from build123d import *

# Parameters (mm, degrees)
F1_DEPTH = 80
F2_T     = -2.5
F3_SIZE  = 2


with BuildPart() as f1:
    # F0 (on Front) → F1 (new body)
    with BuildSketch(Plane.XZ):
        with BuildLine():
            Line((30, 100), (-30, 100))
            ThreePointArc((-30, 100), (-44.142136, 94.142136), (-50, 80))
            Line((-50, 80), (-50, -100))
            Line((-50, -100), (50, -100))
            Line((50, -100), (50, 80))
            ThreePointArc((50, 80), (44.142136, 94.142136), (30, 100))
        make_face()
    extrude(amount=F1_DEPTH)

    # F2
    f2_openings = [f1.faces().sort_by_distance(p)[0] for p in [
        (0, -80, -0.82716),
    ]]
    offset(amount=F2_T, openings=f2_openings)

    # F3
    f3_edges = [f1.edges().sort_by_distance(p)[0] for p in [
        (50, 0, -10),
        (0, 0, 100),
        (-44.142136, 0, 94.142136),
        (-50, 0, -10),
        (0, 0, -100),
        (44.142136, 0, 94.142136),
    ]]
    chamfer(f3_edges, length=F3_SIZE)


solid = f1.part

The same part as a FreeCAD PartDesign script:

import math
import FreeCAD as App
import Part
import Sketcher
from FreeCAD import Vector


def edges_at(feature, points):
    """Names of the edges that pass closest to the given points."""
    edges = feature.Shape.Edges
    near = lambda p: min(range(len(edges)), key=lambda i: edges[i].distToShape(Part.Vertex(*p))[0])
    return sorted({f"Edge{near(p) + 1}" for p in points})


def faces_at(feature, points):
    """Names of the faces that lie closest to the given points."""
    faces = feature.Shape.Faces
    near = lambda p: min(range(len(faces)), key=lambda i: faces[i].distToShape(Part.Vertex(*p))[0])
    return sorted({f"Face{near(p) + 1}" for p in points})

doc = App.newDocument("Part")
body = doc.addObject("PartDesign::Body", "Body")

# Sketch on XZ plane
sketch1 = doc.addObject("Sketcher::SketchObject", "Sketch")
body.addObject(sketch1)
sketch1.AttachmentSupport = (doc.XZ_Plane, [""])
sketch1.MapMode = "FlatFace"
sketch1.addGeometry([
    Part.LineSegment(Vector(30, 100, 0), Vector(-30, 100, 0)),  # 0
    Part.ArcOfCircle(Part.Circle(Vector(-30, 80, 0), Vector(0, 0, 1), 20), math.radians(90), math.radians(180)),  # 1
    Part.LineSegment(Vector(-50, 80, 0), Vector(-50, -100, 0)),  # 2
    Part.LineSegment(Vector(-50, -100, 0), Vector(50, -100, 0)),  # 3
    Part.LineSegment(Vector(50, -100, 0), Vector(50, 80, 0)),  # 4
    Part.ArcOfCircle(Part.Circle(Vector(30, 80, 0), Vector(0, 0, 1), 20), math.radians(0), math.radians(90)),  # 5
], False)
sketch1.addConstraint([
    Sketcher.Constraint("Tangent", 0, 2, 1, 1),
    Sketcher.Constraint("Tangent", 1, 2, 2, 1),
    Sketcher.Constraint("Coincident", 2, 2, 3, 1),
    Sketcher.Constraint("Coincident", 3, 2, 4, 1),
    Sketcher.Constraint("Tangent", 4, 2, 5, 1),
    Sketcher.Constraint("Tangent", 5, 2, 0, 1),
    Sketcher.Constraint("Horizontal", 0),
    Sketcher.Constraint("Vertical", 2),
    Sketcher.Constraint("Horizontal", 3),
    Sketcher.Constraint("Vertical", 4),
    Sketcher.Constraint("Equal", 1, 5),
    Sketcher.Constraint("Radius", 1, 19.999999),
    Sketcher.Constraint("DistanceX", 0, 2, 0, 1, 60.0),
    Sketcher.Constraint("DistanceY", 2, 2, 2, 1, 180.0),
    Sketcher.Constraint("DistanceX", 1, 3, -1, 1, 30.000001),
    Sketcher.Constraint("DistanceY", -1, 1, 1, 3, 80.000001),
])
pad1 = doc.addObject("PartDesign::Pad", "Pad")
body.addObject(pad1)
pad1.Profile = sketch1
pad1.Length = 80
doc.recompute()

thickness = doc.addObject("PartDesign::Thickness", "Thickness")
body.addObject(thickness)
thickness.Base = (pad1, faces_at(pad1, [(0, -80, 0)]))
thickness.Value = 2.5
thickness.Reversed = True
thickness.Join = "Arc"
doc.recompute()

chamfer = doc.addObject("PartDesign::Chamfer", "Chamfer")
body.addObject(chamfer)
chamfer.Base = (thickness, edges_at(thickness, [
    (50, 0, -10),
    (0, 0, 100),
    (-44.142, 0, 94.142),
    (-50, 0, -10),
    (0, 0, -100),
    (44.142, 0, 94.142),
]))
chamfer.Size = 2

doc.recompute()
